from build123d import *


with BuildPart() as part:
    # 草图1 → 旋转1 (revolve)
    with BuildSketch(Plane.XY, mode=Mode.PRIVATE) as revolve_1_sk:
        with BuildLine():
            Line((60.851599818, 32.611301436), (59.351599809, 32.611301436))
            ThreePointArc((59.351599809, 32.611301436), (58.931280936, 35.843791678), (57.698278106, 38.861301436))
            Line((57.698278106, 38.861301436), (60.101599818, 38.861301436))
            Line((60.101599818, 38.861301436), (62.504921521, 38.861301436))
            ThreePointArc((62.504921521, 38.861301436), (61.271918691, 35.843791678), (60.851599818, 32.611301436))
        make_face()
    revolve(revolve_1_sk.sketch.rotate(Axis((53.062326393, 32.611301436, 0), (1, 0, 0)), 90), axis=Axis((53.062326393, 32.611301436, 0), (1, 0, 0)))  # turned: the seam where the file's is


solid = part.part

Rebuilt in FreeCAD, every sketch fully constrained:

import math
import FreeCAD as App
import Part
import Sketcher
from FreeCAD import Vector

doc = App.newDocument("Part")
body = doc.addObject("PartDesign::Body", "Body")

sketch1 = body.newObject("Sketcher::SketchObject", "Sketch")
sketch1.AttachmentSupport = (doc.getObject("XY_Plane"), [""])
sketch1.MapMode = "FlatFace"
sketch1.addGeometry(Part.LineSegment(Vector(59.4, 32.6, 0), Vector(60.9, 32.6, 0)), False)
sketch1.addGeometry(Part.ArcOfCircle(Part.Circle(Vector(73.5, 32.6, 0), Vector(0, 0, 1), 12.6), math.radians(150), math.radians(180)), False)
sketch1.addGeometry(Part.LineSegment(Vector(62.5, 38.9, 0), Vector(57.7, 38.9, 0)), False)
sketch1.addGeometry(Part.ArcOfCircle(Part.Circle(Vector(46.7, 32.6, 0), Vector(0, 0, 1), 12.6), math.radians(0), math.radians(30)), False)
sketch1.addGeometry(Part.LineSegment(Vector(46.7, 32.6, 0), Vector(73.5, 32.6, 0)), True)
sketch1.addConstraint(Sketcher.Constraint("Coincident", 0, 2, 1, 2))
sketch1.addConstraint(Sketcher.Constraint("Coincident", 1, 1, 2, 1))
sketch1.addConstraint(Sketcher.Constraint("Coincident", 2, 2, 3, 2))
sketch1.addConstraint(Sketcher.Constraint("Coincident", 3, 1, 0, 1))
sketch1.addConstraint(Sketcher.Constraint("Horizontal", 0))
sketch1.addConstraint(Sketcher.Constraint("Horizontal", 2))
sketch1.addConstraint(Sketcher.Constraint("Horizontal", 4))
sketch1.addConstraint(Sketcher.Constraint("Coincident", 4, 1, 3, 3))
sketch1.addConstraint(Sketcher.Constraint("Coincident", 4, 2, 1, 3))
sketch1.addConstraint(Sketcher.Constraint("Equal", 1, 3))
sketch1.addConstraint(Sketcher.Constraint("Horizontal", 3, 3, 0, 2))
sketch1.addConstraint(Sketcher.Constraint("Radius", 1, 12.64))
sketch1.addConstraint(Sketcher.Constraint("DistanceX", 0, 1, 0, 2, 1.5))
sketch1.addConstraint(Sketcher.Constraint("DistanceY", 0, 2, 1, 1, 6.25))
sketch1.addConstraint(Sketcher.Constraint("DistanceX", -1, 1, 1, 3, 73.4916))
sketch1.addConstraint(Sketcher.Constraint("DistanceY", -1, 1, 1, 3, 32.611301))
revolution = body.newObject("PartDesign::Revolution", "Revolution")
revolution.Profile = sketch1
revolution.ReferenceAxis = (sketch1, ["Axis0"])
revolution.Angle = 360

doc.recompute()
